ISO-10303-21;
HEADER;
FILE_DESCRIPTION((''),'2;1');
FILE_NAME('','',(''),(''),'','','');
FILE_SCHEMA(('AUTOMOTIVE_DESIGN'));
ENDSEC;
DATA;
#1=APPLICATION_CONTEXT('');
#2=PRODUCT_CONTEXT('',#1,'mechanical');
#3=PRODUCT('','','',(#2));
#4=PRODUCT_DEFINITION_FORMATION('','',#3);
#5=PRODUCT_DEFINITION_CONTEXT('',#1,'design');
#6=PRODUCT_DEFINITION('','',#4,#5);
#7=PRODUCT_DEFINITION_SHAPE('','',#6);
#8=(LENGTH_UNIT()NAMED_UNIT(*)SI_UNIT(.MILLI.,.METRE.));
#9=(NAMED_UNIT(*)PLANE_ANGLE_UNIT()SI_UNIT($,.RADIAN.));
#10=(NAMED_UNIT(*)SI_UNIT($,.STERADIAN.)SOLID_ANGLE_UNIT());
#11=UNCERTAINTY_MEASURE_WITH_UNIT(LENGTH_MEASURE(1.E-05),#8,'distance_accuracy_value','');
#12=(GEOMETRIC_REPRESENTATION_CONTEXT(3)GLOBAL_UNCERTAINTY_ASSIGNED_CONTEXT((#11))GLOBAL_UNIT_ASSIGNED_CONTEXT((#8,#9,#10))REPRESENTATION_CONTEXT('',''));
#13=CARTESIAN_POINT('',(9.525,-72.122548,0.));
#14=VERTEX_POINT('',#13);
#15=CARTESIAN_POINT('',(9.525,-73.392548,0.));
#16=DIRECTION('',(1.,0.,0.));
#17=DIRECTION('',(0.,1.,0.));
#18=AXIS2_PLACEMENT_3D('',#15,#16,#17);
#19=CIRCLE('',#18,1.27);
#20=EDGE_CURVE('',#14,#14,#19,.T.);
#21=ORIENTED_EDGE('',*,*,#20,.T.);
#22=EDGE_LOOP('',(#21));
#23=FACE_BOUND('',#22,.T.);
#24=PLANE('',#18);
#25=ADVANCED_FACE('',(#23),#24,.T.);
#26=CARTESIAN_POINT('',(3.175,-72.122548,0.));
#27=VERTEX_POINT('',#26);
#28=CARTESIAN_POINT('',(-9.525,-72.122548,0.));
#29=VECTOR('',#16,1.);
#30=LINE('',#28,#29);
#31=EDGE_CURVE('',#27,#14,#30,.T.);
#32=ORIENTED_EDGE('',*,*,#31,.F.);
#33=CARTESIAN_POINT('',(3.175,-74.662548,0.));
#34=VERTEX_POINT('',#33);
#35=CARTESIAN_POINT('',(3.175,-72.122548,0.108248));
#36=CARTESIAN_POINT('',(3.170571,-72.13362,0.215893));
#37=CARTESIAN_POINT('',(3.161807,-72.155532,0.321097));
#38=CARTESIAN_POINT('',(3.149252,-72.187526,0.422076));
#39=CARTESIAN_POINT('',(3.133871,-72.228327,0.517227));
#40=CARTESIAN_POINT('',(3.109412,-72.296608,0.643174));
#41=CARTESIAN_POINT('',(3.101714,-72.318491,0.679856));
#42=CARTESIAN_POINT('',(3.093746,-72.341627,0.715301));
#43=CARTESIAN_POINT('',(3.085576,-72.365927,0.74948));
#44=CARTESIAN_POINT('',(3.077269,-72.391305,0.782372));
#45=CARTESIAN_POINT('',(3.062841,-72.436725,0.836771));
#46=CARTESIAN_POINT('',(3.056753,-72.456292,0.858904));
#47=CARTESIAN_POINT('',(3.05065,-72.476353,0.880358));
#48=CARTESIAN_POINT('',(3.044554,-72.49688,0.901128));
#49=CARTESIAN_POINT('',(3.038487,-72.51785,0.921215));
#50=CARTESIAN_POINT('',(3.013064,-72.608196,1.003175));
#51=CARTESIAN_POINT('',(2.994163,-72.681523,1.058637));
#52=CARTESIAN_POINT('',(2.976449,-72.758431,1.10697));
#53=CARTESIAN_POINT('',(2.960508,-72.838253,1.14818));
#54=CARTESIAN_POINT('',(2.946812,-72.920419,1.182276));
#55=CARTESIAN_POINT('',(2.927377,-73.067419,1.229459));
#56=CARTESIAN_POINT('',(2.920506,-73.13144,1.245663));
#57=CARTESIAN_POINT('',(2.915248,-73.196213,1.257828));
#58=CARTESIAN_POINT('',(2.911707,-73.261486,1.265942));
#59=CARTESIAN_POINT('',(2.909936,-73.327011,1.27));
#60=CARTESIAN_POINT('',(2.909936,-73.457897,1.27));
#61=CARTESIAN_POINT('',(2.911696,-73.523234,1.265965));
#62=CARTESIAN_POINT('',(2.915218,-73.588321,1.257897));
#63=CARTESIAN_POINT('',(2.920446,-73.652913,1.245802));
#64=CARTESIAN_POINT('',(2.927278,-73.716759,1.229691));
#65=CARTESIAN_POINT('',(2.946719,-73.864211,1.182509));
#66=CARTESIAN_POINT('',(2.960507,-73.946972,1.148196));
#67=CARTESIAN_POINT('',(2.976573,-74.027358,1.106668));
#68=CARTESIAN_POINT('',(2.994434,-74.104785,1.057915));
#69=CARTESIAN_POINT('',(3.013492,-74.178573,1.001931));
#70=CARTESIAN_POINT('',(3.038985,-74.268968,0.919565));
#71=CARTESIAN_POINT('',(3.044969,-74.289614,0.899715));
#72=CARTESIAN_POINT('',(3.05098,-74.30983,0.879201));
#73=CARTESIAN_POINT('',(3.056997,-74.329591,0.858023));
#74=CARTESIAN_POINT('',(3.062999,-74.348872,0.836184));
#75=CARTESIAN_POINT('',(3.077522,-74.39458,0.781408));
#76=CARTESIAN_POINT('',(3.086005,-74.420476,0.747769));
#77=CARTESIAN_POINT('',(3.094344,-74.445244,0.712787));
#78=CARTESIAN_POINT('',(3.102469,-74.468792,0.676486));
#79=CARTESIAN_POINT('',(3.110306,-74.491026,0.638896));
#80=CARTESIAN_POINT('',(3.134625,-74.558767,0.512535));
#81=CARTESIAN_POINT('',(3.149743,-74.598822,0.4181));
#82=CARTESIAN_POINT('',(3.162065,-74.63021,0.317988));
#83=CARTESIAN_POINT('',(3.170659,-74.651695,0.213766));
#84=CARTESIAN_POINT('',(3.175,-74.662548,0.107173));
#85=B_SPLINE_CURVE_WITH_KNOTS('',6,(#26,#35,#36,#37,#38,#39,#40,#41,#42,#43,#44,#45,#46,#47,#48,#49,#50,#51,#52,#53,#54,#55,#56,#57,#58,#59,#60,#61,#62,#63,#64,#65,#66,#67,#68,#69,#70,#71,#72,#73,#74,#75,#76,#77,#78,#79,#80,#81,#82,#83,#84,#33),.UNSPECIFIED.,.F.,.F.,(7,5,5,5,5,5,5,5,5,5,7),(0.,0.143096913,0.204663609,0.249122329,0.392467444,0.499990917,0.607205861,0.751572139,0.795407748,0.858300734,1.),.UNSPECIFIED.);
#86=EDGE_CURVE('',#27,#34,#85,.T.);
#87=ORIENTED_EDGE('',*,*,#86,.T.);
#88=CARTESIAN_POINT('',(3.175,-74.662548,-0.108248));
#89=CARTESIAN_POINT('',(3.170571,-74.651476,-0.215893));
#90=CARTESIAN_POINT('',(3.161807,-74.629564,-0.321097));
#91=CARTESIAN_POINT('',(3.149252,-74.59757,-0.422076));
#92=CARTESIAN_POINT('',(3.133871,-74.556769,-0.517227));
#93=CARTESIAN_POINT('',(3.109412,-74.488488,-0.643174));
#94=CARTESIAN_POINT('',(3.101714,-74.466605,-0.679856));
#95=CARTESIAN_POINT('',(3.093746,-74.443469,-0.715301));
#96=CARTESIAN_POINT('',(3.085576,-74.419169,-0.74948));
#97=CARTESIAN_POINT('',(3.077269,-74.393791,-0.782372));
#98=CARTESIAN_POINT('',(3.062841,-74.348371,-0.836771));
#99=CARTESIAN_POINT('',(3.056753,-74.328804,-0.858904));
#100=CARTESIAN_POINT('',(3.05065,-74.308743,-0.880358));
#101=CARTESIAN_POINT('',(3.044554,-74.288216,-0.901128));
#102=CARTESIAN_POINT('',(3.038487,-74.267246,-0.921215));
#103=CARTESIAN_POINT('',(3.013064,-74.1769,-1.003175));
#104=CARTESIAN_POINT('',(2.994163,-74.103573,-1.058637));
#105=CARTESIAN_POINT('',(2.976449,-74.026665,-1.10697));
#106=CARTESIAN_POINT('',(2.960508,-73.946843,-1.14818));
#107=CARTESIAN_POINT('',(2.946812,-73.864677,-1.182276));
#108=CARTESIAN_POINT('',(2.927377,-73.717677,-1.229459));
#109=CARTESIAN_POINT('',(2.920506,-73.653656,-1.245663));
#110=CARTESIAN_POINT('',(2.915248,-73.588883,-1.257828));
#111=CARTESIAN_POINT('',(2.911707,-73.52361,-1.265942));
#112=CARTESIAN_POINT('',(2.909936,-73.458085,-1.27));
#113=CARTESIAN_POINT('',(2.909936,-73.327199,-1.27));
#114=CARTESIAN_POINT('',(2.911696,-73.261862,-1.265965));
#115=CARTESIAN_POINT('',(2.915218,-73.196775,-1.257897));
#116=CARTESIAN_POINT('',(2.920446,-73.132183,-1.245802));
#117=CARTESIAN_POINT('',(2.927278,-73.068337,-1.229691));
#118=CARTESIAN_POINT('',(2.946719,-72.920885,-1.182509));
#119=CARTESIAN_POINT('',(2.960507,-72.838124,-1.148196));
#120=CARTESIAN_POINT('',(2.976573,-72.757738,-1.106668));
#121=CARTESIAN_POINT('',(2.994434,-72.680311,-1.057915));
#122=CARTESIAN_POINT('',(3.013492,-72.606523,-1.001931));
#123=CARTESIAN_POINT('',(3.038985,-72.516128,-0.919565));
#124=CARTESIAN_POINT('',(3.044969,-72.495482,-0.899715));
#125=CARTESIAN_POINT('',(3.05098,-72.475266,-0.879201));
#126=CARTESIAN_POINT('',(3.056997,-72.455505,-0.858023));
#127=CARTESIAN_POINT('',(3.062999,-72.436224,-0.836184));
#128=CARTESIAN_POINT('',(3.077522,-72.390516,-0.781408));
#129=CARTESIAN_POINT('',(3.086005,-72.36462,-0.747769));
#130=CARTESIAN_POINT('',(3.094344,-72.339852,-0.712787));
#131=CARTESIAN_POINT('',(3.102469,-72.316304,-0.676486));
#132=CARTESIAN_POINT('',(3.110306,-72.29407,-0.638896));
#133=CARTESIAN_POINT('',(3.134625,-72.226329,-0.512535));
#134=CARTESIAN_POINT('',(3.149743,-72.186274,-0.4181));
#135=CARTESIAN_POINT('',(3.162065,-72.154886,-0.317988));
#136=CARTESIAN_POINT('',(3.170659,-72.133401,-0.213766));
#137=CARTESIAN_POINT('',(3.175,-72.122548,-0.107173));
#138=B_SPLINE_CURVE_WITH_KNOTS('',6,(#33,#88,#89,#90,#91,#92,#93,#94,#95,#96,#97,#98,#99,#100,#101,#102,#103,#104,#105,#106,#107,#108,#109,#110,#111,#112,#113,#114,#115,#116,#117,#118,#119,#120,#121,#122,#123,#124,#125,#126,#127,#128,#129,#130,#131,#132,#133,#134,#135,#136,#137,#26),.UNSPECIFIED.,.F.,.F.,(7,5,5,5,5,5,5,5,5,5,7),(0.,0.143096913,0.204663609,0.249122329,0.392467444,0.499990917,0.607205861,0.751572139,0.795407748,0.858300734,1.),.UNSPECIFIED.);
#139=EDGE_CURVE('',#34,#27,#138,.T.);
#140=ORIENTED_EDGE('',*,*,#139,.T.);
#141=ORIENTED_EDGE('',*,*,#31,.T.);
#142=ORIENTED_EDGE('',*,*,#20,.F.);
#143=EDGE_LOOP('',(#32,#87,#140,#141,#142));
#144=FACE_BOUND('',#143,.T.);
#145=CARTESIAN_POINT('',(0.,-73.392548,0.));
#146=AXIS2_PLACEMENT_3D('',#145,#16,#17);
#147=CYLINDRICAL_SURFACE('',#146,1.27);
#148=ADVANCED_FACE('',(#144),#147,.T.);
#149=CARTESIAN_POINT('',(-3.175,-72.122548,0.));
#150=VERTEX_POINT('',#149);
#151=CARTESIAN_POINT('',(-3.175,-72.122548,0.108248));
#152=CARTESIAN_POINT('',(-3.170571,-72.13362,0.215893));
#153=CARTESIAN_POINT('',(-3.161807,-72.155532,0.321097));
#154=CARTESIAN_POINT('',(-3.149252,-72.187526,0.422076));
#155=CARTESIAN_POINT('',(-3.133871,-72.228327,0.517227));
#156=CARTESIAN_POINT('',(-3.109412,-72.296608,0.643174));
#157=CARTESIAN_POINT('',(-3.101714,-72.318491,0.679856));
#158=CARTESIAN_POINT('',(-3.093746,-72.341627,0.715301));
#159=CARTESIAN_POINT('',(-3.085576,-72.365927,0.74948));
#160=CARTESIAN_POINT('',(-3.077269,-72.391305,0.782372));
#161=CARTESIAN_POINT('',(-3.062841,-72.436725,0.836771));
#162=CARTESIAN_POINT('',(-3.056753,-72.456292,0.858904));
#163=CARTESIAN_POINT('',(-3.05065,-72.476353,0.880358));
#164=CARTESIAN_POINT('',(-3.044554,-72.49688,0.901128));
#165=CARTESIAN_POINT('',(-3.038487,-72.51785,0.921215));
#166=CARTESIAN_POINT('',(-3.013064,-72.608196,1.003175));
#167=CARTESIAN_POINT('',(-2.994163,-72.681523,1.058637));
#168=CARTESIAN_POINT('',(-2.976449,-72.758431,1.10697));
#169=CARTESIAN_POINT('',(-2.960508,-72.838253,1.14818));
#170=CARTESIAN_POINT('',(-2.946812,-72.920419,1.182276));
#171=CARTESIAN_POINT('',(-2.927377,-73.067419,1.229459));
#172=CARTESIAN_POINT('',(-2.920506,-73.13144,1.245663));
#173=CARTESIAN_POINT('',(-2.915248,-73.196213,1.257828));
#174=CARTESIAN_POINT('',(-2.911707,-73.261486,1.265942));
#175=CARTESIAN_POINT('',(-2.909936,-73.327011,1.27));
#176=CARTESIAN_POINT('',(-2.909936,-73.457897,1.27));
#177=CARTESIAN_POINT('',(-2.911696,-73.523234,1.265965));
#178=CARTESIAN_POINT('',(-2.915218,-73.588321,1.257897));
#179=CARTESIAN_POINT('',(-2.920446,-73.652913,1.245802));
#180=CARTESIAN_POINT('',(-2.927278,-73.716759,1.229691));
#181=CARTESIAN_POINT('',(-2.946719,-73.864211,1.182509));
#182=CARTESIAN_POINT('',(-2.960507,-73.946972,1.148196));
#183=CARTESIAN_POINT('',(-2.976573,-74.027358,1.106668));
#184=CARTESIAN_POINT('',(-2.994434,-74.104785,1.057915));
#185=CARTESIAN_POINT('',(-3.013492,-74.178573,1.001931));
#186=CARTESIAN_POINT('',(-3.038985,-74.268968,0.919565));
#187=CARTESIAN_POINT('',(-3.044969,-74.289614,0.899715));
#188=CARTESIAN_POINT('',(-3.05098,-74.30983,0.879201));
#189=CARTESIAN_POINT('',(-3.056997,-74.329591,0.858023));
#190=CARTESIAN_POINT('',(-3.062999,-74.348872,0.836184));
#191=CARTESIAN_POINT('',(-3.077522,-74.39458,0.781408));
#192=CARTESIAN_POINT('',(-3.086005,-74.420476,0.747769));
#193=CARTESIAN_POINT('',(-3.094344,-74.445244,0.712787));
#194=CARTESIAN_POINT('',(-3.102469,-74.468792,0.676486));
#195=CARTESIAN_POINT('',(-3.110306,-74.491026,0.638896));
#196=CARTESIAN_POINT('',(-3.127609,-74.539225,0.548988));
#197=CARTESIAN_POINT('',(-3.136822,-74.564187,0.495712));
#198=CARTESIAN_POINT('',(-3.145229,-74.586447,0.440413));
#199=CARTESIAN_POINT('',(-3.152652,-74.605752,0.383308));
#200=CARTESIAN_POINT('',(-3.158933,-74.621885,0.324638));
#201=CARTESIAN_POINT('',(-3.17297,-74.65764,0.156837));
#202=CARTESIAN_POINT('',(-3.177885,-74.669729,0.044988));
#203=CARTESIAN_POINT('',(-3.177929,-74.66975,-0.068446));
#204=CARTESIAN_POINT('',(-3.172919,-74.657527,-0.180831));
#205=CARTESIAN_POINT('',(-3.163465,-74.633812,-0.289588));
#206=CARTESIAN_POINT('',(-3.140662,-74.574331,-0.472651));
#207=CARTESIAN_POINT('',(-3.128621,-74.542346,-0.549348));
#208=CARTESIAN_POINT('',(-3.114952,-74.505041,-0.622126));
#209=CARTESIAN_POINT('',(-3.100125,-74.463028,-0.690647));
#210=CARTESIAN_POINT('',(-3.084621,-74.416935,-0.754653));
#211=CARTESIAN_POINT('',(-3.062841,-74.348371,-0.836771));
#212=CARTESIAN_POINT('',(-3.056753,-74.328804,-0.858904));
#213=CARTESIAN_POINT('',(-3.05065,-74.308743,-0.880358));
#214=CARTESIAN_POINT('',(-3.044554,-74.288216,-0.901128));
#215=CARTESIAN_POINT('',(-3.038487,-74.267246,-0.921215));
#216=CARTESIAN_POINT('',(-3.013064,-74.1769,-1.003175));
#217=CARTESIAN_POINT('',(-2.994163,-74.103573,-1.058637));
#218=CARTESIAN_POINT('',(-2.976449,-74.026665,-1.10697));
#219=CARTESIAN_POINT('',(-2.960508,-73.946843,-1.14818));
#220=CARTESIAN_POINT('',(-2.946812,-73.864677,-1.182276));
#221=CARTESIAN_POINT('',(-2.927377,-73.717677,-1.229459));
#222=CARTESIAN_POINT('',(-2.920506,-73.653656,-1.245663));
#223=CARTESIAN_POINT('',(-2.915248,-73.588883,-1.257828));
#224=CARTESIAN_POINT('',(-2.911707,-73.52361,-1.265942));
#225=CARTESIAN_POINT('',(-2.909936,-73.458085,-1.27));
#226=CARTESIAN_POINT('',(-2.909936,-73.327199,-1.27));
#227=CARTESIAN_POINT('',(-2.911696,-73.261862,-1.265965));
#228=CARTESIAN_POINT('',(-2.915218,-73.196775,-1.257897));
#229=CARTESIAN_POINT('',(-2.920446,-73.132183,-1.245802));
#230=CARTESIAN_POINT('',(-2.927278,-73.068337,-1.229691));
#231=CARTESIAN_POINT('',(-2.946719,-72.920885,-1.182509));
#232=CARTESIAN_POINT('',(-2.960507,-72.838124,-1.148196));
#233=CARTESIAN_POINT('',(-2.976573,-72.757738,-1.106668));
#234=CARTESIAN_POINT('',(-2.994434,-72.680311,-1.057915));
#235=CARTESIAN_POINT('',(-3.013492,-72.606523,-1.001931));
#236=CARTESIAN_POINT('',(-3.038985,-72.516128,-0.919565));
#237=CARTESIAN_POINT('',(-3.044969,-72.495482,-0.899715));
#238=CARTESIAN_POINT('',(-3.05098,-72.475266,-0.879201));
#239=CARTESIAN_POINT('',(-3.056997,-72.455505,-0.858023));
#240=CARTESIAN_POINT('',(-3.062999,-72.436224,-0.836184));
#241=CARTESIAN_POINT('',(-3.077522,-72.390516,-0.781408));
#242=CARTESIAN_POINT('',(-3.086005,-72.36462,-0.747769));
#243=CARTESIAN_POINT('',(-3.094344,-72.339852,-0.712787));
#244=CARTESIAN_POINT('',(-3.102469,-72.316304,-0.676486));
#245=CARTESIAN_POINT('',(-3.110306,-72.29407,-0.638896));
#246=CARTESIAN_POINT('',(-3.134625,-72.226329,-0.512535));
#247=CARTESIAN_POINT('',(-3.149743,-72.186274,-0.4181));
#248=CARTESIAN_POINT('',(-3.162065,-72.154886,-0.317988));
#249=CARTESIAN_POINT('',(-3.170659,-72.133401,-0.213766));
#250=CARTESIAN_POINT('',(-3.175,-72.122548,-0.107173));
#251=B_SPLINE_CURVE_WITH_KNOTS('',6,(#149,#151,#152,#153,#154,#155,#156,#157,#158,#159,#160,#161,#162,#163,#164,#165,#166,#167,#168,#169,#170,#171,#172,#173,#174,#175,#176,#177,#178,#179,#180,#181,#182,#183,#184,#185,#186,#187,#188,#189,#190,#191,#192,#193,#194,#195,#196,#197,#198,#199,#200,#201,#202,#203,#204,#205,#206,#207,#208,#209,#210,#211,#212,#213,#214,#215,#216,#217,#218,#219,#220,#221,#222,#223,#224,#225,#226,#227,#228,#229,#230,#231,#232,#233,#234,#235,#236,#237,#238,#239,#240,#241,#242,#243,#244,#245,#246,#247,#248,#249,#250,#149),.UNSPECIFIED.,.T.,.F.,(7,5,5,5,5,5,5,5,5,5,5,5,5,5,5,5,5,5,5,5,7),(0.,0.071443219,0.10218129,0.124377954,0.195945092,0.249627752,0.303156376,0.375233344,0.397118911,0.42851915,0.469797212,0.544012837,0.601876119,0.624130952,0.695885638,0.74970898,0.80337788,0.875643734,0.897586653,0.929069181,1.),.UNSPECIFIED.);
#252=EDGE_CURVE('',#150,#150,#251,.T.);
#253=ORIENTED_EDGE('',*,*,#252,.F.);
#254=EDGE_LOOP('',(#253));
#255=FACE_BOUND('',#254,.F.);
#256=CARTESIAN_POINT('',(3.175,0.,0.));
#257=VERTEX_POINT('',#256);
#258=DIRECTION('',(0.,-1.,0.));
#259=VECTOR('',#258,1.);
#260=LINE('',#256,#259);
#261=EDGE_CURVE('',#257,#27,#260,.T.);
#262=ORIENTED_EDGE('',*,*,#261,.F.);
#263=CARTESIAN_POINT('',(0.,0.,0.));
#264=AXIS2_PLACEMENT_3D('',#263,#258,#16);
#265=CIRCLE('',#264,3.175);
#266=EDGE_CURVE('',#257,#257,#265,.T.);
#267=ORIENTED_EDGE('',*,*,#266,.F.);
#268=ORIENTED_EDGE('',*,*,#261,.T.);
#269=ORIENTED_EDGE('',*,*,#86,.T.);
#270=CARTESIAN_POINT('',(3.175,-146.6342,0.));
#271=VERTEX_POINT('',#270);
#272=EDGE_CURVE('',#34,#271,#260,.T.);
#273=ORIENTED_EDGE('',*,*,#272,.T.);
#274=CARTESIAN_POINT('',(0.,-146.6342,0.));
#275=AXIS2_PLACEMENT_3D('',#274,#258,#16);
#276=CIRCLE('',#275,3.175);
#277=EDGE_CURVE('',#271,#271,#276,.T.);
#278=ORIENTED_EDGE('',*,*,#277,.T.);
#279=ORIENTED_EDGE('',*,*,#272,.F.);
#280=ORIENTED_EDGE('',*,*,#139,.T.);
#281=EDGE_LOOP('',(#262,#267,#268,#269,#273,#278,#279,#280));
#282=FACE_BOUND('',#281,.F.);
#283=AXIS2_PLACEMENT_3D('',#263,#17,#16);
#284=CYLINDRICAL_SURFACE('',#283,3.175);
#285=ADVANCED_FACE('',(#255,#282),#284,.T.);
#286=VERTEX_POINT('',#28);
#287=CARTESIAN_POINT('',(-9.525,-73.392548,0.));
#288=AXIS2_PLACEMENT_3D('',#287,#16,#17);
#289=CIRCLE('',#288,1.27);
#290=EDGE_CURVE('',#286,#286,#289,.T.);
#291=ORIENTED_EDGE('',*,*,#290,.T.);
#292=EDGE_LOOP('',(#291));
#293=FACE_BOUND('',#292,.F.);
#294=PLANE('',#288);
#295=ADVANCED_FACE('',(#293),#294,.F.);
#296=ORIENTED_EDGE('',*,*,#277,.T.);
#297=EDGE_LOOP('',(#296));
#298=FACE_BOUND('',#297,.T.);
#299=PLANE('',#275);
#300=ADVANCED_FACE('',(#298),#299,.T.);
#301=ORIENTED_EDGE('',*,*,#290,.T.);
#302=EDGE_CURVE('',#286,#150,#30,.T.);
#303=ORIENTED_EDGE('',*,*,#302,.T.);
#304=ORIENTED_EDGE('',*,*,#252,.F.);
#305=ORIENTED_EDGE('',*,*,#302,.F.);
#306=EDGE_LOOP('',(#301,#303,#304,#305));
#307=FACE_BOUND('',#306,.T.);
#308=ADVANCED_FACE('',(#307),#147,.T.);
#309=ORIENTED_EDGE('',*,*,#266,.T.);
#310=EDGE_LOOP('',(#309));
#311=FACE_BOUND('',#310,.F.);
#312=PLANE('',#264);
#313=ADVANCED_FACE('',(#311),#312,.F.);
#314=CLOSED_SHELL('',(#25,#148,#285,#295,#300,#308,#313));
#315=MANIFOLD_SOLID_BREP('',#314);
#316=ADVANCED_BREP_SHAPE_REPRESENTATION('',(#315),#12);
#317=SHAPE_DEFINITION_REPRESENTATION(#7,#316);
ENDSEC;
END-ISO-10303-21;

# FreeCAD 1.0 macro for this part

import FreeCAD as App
import Part
import Sketcher
Q = App.Units.Quantity

doc = App.newDocument("Part")
body = doc.addObject("PartDesign::Body", "Body")

sketch1 = doc.addObject("Sketcher::SketchObject", "Sketch")
body.addObject(sketch1)
sketch1.AttachmentSupport = (doc.XZ_Plane, [""])
sketch1.MapMode = "FlatFace"
sketch1.addGeometry(Part.Circle(App.Vector(0, 0, 0), App.Vector(0, 0, 1), 3.175), False)
sketch1.addConstraint([
    Sketcher.Constraint("Coincident", 0, 3, -1, 1),
    Sketcher.Constraint("Diameter", 0, Q("0.25 in")),
])
pad1 = doc.addObject("PartDesign::Pad", "Pad")
body.addObject(pad1)
pad1.Profile = sketch1
pad1.Length = Q("5.773 in")

sketch2 = doc.addObject("Sketcher::SketchObject", "Sketch001")
body.addObject(sketch2)
sketch2.AttachmentSupport = (doc.YZ_Plane, [""])
sketch2.MapMode = "FlatFace"
sketch2.addGeometry(Part.Circle(App.Vector(-73.392548, 0, 0), App.Vector(0, 0, 1), 1.27), False)
sketch2.addConstraint([
    Sketcher.Constraint("PointOnObject", 0, 3, -1),
    Sketcher.Constraint("Diameter", 0, Q("0.1 in")),
    Sketcher.Constraint("DistanceX", 0, 3, -1, 1, 73.392548),
])
pad2 = doc.addObject("PartDesign::Pad", "Pad001")
body.addObject(pad2)
pad2.Profile = sketch2
pad2.Length = Q("0.75 in")
pad2.Midplane = True

doc.recompute()
